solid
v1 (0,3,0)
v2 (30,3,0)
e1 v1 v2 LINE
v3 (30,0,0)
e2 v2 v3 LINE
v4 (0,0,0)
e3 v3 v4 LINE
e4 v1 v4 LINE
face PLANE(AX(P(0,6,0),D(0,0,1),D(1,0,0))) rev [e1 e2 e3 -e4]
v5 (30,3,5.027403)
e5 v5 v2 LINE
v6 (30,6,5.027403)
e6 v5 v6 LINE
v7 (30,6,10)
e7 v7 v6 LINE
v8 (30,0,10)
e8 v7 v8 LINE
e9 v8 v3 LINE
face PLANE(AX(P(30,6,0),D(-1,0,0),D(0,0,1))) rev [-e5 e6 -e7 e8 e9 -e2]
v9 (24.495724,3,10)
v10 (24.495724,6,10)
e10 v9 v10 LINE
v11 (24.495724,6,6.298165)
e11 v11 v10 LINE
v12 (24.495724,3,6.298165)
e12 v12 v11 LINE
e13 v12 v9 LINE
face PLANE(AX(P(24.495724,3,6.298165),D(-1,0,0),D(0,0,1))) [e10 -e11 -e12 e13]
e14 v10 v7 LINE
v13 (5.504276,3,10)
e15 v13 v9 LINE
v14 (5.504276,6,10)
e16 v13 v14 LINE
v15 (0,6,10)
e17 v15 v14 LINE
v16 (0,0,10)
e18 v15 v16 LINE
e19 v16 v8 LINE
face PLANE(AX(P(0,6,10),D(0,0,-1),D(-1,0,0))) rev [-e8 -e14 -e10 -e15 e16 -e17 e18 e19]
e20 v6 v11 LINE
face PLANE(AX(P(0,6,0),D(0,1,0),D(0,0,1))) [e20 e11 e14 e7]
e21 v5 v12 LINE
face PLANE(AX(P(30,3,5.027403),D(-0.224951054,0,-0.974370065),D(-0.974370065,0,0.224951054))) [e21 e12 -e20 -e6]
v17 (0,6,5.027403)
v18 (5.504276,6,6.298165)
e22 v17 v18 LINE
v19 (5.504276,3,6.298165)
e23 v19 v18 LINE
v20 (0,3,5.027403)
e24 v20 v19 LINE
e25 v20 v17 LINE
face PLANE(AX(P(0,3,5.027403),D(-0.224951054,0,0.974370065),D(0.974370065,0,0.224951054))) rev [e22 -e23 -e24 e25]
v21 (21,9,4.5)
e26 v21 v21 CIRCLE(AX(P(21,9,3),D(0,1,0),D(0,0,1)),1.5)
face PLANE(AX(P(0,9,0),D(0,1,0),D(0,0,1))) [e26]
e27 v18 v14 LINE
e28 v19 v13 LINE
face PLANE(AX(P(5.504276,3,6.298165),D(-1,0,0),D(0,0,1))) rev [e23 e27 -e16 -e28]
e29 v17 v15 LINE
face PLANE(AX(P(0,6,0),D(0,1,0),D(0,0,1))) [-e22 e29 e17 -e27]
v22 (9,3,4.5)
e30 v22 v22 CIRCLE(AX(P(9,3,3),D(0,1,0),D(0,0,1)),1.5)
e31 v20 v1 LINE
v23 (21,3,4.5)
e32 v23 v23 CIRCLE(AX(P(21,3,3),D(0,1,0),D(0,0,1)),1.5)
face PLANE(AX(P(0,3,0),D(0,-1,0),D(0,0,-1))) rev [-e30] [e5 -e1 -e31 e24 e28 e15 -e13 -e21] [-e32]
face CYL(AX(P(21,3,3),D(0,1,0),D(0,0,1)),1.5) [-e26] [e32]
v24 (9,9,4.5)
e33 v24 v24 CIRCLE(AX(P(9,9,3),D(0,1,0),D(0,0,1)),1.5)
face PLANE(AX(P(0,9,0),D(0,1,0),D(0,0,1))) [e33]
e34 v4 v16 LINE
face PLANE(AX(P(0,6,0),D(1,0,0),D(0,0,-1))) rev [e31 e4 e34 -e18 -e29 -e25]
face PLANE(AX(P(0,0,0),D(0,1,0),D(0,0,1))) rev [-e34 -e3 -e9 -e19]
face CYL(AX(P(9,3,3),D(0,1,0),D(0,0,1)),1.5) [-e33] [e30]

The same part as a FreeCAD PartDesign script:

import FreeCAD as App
import Part
import Sketcher

V = App.Vector
Q = App.Units.Quantity

doc = App.newDocument("Part")
body = doc.addObject("PartDesign::Body", "Body")

sketch1 = body.newObject("Sketcher::SketchObject", "Sketch")
sketch1.AttachmentSupport = (doc.getObject("XZ_Plane"), [""])
sketch1.MapMode = "FlatFace"
sketch1.addGeometry([
    Part.LineSegment(V(0, 0, 0), V(0, 10, 0)),
    Part.LineSegment(V(0, 10, 0), V(30, 10, 0)),
    Part.LineSegment(V(30, 10, 0), V(30, 0, 0)),
    Part.LineSegment(V(30, 0, 0), V(0, 0, 0)),
], False)
sketch1.addConstraint([
    Sketcher.Constraint("Coincident", 0, 2, 1, 1),
    Sketcher.Constraint("Coincident", 1, 2, 2, 1),
    Sketcher.Constraint("Coincident", 2, 2, 3, 1),
    Sketcher.Constraint("Coincident", 3, 2, 0, 1),
    Sketcher.Constraint("Vertical", 0),
    Sketcher.Constraint("Horizontal", 1),
    Sketcher.Constraint("Vertical", 2),
    Sketcher.Constraint("Horizontal", 3),
    Sketcher.Constraint("Coincident", 3, 2, -1, 1),
    Sketcher.Constraint("DistanceX", 1, 1, 1, 2, Q("30 mm")),
    Sketcher.Constraint("DistanceY", 0, 1, 0, 2, Q("10 mm")),
])
pad1 = body.newObject("PartDesign::Pad", "Pad")
pad1.Profile = sketch1
pad1.Length = 6
pad1.Reversed = True

sketch2 = body.newObject("Sketcher::SketchObject", "Sketch001")
sketch2.AttachmentSupport = (doc.getObject("XZ_Plane"), [""])
sketch2.MapMode = "FlatFace"
sketch2.AttachmentOffset = App.Placement(V(0, 0, -6), App.Rotation())
sketch2.addGeometry([
    Part.LineSegment(V(0, 5, 0), V(5.5, 6.3, 0)),
    Part.LineSegment(V(5.5, 6.3, 0), V(5.5, 10, 0)),
    Part.LineSegment(V(5.5, 10, 0), V(24.5, 10, 0)),
    Part.LineSegment(V(24.5, 10, 0), V(24.5, 6.3, 0)),
    Part.LineSegment(V(24.5, 6.3, 0), V(30, 5, 0)),
    Part.LineSegment(V(30, 5, 0), V(30, 0, 0)),
    Part.LineSegment(V(30, 0, 0), V(0, 0, 0)),
    Part.LineSegment(V(0, 0, 0), V(0, 5, 0)),
], False)
sketch2.addConstraint([
    Sketcher.Constraint("Coincident", 0, 2, 1, 1),
    Sketcher.Constraint("Coincident", 1, 2, 2, 1),
    Sketcher.Constraint("Coincident", 2, 2, 3, 1),
    Sketcher.Constraint("Coincident", 3, 2, 4, 1),
    Sketcher.Constraint("Coincident", 4, 2, 5, 1),
    Sketcher.Constraint("Coincident", 5, 2, 6, 1),
    Sketcher.Constraint("Coincident", 6, 2, 7, 1),
    Sketcher.Constraint("Coincident", 7, 2, 0, 1),
    Sketcher.Constraint("Vertical", 1),
    Sketcher.Constraint("Horizontal", 2),
    Sketcher.Constraint("Vertical", 3),
    Sketcher.Constraint("Vertical", 5),
    Sketcher.Constraint("Horizontal", 6),
    Sketcher.Constraint("Vertical", 7),
    Sketcher.Constraint("Coincident", 6, 2, -1, 1),
    Sketcher.Constraint("Horizontal", 0, 2, 3, 2),
    Sketcher.Constraint("Horizontal", 4, 2, 7, 2),
    Sketcher.Constraint("Equal", 0, 4),
    Sketcher.Constraint("DistanceX", 6, 2, 6, 1, Q("30 mm")),
    Sketcher.Constraint("Angle", 0, Q("13 deg")),
    Sketcher.Constraint("DistanceY", -1, 1, 1, 2, Q("10 mm")),
    Sketcher.Constraint("DistanceX", 2, 1, 2, 2, Q("18.991448 mm")),
    Sketcher.Constraint("DistanceY", 1, 1, 1, 2, Q("3.701835 mm")),
])
pocket1 = body.newObject("PartDesign::Pocket", "Pocket")
pocket1.Profile = sketch2
pocket1.Length = 3
pocket1.Reversed = True
body2 = doc.addObject("PartDesign::Body", "Body001")

sketch3 = body2.newObject("Sketcher::SketchObject", "Sketch002")
sketch3.AttachmentSupport = (doc.getObject("XZ_Plane001"), [""])
sketch3.MapMode = "FlatFace"
sketch3.AttachmentOffset = App.Placement(V(0, 0, -6), App.Rotation())
sketch3.addGeometry(Part.Circle(V(9, 3, 0), V(0, 0, 1), 1.5), False)
sketch3.addConstraint([
    Sketcher.Constraint("Diameter", 0, Q("3 mm")),
    Sketcher.Constraint("DistanceX", -1, 1, 0, 3, Q("9 mm")),
    Sketcher.Constraint("DistanceY", -1, 1, 0, 3, Q("3 mm")),
])
pad2 = body2.newObject("PartDesign::Pad", "Pad001")
pad2.Profile = sketch3
pad2.Length = 3
pad2.Reversed = True
body3 = doc.addObject("PartDesign::Body", "Body002")

sketch4 = body3.newObject("Sketcher::SketchObject", "Sketch003")
sketch4.AttachmentSupport = (doc.getObject("XZ_Plane002"), [""])
sketch4.MapMode = "FlatFace"
sketch4.AttachmentOffset = App.Placement(V(0, 0, -6), App.Rotation())
sketch4.addGeometry(Part.Circle(V(21, 3, 0), V(0, 0, 1), 1.5), False)
sketch4.addConstraint([
    Sketcher.Constraint("Diameter", 0, Q("3 mm")),
    Sketcher.Constraint("DistanceX", -1, 1, 0, 3, Q("21 mm")),
    Sketcher.Constraint("DistanceY", -1, 1, 0, 3, Q("3 mm")),
])
pad3 = body3.newObject("PartDesign::Pad", "Pad002")
pad3.Profile = sketch4
pad3.Length = 3
pad3.Reversed = True
body.AllowCompound = True
doc.recompute()

boolean = body.newObject("PartDesign::Boolean", "Boolean")
boolean.Type = "Fuse"
boolean.addObjects([body2])
doc.recompute()

boolean2 = body.newObject("PartDesign::Boolean", "Boolean001")
boolean2.Type = "Fuse"
boolean2.addObjects([body3])

sketch5 = body.newObject("Sketcher::SketchObject", "Sketch004")
sketch5.AttachmentSupport = (doc.getObject("XZ_Plane"), [""])
sketch5.MapMode = "FlatFace"
sketch5.AttachmentOffset = App.Placement(V(0, 0, -6), App.Rotation())
sketch5.addGeometry([
    Part.Circle(V(9, 3, 0), V(0, 0, 1), 1.5),
    Part.Circle(V(21, 3, 0), V(0, 0, 1), 1.5),
], False)
sketch5.addConstraint([
    Sketcher.Constraint("Equal", 0, 1),
    Sketcher.Constraint("Horizontal", 0, 3, 1, 3),
    Sketcher.Constraint("Diameter", 0, Q("3 mm")),
    Sketcher.Constraint("DistanceX", -1, 1, 0, 3, Q("9 mm")),
    Sketcher.Constraint("DistanceY", -1, 1, 0, 3, Q("3 mm")),
    Sketcher.Constraint("DistanceX", -1, 1, 1, 3, Q("21 mm")),
])
pad4 = body.newObject("PartDesign::Pad", "Pad003")
pad4.Profile = sketch5
pad4.Length = 3

doc.recompute()
